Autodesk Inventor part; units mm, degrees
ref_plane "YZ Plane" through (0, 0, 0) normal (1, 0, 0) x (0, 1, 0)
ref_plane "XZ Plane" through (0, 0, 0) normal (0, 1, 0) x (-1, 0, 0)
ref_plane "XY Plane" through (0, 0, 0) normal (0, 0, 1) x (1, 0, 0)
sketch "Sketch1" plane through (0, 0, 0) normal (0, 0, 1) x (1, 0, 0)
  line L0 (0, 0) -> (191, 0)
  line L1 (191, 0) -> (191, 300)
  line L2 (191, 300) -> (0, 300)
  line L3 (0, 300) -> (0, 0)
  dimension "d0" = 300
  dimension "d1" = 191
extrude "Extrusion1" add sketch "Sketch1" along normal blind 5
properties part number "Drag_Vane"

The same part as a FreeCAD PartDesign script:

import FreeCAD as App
import Part
import Sketcher

V = App.Vector

doc = App.newDocument("Part")
body = doc.addObject("PartDesign::Body", "Body")

# Sketch on XY plane
sketch1 = body.newObject("Sketcher::SketchObject", "Sketch")
sketch1.AttachmentSupport = (doc.getObject("XY_Plane"), [""])
sketch1.MapMode = "FlatFace"
sketch1.addGeometry([
    Part.LineSegment(V(0, 300, 0), V(0, 0, 0)),
    Part.LineSegment(V(0, 0, 0), V(191, 0, 0)),
    Part.LineSegment(V(191, 0, 0), V(191, 300, 0)),
    Part.LineSegment(V(191, 300, 0), V(0, 300, 0)),
], False)
sketch1.addConstraint([
    Sketcher.Constraint("Coincident", 0, 2, 1, 1),
    Sketcher.Constraint("Coincident", 1, 2, 2, 1),
    Sketcher.Constraint("Coincident", 2, 2, 3, 1),
    Sketcher.Constraint("Coincident", 3, 2, 0, 1),
    Sketcher.Constraint("Vertical", 0),
    Sketcher.Constraint("Horizontal", 1),
    Sketcher.Constraint("Vertical", 2),
    Sketcher.Constraint("Horizontal", 3),
    Sketcher.Constraint("Coincident", 0, 2, -1, 1),
    Sketcher.Constraint("DistanceX", 1, 1, 1, 2, 191.0),
    Sketcher.Constraint("DistanceY", 0, 2, 0, 1, 300.0),
])
pad1 = body.newObject("PartDesign::Pad", "Pad")
pad1.Profile = sketch1
pad1.Length = 5

doc.recompute()
